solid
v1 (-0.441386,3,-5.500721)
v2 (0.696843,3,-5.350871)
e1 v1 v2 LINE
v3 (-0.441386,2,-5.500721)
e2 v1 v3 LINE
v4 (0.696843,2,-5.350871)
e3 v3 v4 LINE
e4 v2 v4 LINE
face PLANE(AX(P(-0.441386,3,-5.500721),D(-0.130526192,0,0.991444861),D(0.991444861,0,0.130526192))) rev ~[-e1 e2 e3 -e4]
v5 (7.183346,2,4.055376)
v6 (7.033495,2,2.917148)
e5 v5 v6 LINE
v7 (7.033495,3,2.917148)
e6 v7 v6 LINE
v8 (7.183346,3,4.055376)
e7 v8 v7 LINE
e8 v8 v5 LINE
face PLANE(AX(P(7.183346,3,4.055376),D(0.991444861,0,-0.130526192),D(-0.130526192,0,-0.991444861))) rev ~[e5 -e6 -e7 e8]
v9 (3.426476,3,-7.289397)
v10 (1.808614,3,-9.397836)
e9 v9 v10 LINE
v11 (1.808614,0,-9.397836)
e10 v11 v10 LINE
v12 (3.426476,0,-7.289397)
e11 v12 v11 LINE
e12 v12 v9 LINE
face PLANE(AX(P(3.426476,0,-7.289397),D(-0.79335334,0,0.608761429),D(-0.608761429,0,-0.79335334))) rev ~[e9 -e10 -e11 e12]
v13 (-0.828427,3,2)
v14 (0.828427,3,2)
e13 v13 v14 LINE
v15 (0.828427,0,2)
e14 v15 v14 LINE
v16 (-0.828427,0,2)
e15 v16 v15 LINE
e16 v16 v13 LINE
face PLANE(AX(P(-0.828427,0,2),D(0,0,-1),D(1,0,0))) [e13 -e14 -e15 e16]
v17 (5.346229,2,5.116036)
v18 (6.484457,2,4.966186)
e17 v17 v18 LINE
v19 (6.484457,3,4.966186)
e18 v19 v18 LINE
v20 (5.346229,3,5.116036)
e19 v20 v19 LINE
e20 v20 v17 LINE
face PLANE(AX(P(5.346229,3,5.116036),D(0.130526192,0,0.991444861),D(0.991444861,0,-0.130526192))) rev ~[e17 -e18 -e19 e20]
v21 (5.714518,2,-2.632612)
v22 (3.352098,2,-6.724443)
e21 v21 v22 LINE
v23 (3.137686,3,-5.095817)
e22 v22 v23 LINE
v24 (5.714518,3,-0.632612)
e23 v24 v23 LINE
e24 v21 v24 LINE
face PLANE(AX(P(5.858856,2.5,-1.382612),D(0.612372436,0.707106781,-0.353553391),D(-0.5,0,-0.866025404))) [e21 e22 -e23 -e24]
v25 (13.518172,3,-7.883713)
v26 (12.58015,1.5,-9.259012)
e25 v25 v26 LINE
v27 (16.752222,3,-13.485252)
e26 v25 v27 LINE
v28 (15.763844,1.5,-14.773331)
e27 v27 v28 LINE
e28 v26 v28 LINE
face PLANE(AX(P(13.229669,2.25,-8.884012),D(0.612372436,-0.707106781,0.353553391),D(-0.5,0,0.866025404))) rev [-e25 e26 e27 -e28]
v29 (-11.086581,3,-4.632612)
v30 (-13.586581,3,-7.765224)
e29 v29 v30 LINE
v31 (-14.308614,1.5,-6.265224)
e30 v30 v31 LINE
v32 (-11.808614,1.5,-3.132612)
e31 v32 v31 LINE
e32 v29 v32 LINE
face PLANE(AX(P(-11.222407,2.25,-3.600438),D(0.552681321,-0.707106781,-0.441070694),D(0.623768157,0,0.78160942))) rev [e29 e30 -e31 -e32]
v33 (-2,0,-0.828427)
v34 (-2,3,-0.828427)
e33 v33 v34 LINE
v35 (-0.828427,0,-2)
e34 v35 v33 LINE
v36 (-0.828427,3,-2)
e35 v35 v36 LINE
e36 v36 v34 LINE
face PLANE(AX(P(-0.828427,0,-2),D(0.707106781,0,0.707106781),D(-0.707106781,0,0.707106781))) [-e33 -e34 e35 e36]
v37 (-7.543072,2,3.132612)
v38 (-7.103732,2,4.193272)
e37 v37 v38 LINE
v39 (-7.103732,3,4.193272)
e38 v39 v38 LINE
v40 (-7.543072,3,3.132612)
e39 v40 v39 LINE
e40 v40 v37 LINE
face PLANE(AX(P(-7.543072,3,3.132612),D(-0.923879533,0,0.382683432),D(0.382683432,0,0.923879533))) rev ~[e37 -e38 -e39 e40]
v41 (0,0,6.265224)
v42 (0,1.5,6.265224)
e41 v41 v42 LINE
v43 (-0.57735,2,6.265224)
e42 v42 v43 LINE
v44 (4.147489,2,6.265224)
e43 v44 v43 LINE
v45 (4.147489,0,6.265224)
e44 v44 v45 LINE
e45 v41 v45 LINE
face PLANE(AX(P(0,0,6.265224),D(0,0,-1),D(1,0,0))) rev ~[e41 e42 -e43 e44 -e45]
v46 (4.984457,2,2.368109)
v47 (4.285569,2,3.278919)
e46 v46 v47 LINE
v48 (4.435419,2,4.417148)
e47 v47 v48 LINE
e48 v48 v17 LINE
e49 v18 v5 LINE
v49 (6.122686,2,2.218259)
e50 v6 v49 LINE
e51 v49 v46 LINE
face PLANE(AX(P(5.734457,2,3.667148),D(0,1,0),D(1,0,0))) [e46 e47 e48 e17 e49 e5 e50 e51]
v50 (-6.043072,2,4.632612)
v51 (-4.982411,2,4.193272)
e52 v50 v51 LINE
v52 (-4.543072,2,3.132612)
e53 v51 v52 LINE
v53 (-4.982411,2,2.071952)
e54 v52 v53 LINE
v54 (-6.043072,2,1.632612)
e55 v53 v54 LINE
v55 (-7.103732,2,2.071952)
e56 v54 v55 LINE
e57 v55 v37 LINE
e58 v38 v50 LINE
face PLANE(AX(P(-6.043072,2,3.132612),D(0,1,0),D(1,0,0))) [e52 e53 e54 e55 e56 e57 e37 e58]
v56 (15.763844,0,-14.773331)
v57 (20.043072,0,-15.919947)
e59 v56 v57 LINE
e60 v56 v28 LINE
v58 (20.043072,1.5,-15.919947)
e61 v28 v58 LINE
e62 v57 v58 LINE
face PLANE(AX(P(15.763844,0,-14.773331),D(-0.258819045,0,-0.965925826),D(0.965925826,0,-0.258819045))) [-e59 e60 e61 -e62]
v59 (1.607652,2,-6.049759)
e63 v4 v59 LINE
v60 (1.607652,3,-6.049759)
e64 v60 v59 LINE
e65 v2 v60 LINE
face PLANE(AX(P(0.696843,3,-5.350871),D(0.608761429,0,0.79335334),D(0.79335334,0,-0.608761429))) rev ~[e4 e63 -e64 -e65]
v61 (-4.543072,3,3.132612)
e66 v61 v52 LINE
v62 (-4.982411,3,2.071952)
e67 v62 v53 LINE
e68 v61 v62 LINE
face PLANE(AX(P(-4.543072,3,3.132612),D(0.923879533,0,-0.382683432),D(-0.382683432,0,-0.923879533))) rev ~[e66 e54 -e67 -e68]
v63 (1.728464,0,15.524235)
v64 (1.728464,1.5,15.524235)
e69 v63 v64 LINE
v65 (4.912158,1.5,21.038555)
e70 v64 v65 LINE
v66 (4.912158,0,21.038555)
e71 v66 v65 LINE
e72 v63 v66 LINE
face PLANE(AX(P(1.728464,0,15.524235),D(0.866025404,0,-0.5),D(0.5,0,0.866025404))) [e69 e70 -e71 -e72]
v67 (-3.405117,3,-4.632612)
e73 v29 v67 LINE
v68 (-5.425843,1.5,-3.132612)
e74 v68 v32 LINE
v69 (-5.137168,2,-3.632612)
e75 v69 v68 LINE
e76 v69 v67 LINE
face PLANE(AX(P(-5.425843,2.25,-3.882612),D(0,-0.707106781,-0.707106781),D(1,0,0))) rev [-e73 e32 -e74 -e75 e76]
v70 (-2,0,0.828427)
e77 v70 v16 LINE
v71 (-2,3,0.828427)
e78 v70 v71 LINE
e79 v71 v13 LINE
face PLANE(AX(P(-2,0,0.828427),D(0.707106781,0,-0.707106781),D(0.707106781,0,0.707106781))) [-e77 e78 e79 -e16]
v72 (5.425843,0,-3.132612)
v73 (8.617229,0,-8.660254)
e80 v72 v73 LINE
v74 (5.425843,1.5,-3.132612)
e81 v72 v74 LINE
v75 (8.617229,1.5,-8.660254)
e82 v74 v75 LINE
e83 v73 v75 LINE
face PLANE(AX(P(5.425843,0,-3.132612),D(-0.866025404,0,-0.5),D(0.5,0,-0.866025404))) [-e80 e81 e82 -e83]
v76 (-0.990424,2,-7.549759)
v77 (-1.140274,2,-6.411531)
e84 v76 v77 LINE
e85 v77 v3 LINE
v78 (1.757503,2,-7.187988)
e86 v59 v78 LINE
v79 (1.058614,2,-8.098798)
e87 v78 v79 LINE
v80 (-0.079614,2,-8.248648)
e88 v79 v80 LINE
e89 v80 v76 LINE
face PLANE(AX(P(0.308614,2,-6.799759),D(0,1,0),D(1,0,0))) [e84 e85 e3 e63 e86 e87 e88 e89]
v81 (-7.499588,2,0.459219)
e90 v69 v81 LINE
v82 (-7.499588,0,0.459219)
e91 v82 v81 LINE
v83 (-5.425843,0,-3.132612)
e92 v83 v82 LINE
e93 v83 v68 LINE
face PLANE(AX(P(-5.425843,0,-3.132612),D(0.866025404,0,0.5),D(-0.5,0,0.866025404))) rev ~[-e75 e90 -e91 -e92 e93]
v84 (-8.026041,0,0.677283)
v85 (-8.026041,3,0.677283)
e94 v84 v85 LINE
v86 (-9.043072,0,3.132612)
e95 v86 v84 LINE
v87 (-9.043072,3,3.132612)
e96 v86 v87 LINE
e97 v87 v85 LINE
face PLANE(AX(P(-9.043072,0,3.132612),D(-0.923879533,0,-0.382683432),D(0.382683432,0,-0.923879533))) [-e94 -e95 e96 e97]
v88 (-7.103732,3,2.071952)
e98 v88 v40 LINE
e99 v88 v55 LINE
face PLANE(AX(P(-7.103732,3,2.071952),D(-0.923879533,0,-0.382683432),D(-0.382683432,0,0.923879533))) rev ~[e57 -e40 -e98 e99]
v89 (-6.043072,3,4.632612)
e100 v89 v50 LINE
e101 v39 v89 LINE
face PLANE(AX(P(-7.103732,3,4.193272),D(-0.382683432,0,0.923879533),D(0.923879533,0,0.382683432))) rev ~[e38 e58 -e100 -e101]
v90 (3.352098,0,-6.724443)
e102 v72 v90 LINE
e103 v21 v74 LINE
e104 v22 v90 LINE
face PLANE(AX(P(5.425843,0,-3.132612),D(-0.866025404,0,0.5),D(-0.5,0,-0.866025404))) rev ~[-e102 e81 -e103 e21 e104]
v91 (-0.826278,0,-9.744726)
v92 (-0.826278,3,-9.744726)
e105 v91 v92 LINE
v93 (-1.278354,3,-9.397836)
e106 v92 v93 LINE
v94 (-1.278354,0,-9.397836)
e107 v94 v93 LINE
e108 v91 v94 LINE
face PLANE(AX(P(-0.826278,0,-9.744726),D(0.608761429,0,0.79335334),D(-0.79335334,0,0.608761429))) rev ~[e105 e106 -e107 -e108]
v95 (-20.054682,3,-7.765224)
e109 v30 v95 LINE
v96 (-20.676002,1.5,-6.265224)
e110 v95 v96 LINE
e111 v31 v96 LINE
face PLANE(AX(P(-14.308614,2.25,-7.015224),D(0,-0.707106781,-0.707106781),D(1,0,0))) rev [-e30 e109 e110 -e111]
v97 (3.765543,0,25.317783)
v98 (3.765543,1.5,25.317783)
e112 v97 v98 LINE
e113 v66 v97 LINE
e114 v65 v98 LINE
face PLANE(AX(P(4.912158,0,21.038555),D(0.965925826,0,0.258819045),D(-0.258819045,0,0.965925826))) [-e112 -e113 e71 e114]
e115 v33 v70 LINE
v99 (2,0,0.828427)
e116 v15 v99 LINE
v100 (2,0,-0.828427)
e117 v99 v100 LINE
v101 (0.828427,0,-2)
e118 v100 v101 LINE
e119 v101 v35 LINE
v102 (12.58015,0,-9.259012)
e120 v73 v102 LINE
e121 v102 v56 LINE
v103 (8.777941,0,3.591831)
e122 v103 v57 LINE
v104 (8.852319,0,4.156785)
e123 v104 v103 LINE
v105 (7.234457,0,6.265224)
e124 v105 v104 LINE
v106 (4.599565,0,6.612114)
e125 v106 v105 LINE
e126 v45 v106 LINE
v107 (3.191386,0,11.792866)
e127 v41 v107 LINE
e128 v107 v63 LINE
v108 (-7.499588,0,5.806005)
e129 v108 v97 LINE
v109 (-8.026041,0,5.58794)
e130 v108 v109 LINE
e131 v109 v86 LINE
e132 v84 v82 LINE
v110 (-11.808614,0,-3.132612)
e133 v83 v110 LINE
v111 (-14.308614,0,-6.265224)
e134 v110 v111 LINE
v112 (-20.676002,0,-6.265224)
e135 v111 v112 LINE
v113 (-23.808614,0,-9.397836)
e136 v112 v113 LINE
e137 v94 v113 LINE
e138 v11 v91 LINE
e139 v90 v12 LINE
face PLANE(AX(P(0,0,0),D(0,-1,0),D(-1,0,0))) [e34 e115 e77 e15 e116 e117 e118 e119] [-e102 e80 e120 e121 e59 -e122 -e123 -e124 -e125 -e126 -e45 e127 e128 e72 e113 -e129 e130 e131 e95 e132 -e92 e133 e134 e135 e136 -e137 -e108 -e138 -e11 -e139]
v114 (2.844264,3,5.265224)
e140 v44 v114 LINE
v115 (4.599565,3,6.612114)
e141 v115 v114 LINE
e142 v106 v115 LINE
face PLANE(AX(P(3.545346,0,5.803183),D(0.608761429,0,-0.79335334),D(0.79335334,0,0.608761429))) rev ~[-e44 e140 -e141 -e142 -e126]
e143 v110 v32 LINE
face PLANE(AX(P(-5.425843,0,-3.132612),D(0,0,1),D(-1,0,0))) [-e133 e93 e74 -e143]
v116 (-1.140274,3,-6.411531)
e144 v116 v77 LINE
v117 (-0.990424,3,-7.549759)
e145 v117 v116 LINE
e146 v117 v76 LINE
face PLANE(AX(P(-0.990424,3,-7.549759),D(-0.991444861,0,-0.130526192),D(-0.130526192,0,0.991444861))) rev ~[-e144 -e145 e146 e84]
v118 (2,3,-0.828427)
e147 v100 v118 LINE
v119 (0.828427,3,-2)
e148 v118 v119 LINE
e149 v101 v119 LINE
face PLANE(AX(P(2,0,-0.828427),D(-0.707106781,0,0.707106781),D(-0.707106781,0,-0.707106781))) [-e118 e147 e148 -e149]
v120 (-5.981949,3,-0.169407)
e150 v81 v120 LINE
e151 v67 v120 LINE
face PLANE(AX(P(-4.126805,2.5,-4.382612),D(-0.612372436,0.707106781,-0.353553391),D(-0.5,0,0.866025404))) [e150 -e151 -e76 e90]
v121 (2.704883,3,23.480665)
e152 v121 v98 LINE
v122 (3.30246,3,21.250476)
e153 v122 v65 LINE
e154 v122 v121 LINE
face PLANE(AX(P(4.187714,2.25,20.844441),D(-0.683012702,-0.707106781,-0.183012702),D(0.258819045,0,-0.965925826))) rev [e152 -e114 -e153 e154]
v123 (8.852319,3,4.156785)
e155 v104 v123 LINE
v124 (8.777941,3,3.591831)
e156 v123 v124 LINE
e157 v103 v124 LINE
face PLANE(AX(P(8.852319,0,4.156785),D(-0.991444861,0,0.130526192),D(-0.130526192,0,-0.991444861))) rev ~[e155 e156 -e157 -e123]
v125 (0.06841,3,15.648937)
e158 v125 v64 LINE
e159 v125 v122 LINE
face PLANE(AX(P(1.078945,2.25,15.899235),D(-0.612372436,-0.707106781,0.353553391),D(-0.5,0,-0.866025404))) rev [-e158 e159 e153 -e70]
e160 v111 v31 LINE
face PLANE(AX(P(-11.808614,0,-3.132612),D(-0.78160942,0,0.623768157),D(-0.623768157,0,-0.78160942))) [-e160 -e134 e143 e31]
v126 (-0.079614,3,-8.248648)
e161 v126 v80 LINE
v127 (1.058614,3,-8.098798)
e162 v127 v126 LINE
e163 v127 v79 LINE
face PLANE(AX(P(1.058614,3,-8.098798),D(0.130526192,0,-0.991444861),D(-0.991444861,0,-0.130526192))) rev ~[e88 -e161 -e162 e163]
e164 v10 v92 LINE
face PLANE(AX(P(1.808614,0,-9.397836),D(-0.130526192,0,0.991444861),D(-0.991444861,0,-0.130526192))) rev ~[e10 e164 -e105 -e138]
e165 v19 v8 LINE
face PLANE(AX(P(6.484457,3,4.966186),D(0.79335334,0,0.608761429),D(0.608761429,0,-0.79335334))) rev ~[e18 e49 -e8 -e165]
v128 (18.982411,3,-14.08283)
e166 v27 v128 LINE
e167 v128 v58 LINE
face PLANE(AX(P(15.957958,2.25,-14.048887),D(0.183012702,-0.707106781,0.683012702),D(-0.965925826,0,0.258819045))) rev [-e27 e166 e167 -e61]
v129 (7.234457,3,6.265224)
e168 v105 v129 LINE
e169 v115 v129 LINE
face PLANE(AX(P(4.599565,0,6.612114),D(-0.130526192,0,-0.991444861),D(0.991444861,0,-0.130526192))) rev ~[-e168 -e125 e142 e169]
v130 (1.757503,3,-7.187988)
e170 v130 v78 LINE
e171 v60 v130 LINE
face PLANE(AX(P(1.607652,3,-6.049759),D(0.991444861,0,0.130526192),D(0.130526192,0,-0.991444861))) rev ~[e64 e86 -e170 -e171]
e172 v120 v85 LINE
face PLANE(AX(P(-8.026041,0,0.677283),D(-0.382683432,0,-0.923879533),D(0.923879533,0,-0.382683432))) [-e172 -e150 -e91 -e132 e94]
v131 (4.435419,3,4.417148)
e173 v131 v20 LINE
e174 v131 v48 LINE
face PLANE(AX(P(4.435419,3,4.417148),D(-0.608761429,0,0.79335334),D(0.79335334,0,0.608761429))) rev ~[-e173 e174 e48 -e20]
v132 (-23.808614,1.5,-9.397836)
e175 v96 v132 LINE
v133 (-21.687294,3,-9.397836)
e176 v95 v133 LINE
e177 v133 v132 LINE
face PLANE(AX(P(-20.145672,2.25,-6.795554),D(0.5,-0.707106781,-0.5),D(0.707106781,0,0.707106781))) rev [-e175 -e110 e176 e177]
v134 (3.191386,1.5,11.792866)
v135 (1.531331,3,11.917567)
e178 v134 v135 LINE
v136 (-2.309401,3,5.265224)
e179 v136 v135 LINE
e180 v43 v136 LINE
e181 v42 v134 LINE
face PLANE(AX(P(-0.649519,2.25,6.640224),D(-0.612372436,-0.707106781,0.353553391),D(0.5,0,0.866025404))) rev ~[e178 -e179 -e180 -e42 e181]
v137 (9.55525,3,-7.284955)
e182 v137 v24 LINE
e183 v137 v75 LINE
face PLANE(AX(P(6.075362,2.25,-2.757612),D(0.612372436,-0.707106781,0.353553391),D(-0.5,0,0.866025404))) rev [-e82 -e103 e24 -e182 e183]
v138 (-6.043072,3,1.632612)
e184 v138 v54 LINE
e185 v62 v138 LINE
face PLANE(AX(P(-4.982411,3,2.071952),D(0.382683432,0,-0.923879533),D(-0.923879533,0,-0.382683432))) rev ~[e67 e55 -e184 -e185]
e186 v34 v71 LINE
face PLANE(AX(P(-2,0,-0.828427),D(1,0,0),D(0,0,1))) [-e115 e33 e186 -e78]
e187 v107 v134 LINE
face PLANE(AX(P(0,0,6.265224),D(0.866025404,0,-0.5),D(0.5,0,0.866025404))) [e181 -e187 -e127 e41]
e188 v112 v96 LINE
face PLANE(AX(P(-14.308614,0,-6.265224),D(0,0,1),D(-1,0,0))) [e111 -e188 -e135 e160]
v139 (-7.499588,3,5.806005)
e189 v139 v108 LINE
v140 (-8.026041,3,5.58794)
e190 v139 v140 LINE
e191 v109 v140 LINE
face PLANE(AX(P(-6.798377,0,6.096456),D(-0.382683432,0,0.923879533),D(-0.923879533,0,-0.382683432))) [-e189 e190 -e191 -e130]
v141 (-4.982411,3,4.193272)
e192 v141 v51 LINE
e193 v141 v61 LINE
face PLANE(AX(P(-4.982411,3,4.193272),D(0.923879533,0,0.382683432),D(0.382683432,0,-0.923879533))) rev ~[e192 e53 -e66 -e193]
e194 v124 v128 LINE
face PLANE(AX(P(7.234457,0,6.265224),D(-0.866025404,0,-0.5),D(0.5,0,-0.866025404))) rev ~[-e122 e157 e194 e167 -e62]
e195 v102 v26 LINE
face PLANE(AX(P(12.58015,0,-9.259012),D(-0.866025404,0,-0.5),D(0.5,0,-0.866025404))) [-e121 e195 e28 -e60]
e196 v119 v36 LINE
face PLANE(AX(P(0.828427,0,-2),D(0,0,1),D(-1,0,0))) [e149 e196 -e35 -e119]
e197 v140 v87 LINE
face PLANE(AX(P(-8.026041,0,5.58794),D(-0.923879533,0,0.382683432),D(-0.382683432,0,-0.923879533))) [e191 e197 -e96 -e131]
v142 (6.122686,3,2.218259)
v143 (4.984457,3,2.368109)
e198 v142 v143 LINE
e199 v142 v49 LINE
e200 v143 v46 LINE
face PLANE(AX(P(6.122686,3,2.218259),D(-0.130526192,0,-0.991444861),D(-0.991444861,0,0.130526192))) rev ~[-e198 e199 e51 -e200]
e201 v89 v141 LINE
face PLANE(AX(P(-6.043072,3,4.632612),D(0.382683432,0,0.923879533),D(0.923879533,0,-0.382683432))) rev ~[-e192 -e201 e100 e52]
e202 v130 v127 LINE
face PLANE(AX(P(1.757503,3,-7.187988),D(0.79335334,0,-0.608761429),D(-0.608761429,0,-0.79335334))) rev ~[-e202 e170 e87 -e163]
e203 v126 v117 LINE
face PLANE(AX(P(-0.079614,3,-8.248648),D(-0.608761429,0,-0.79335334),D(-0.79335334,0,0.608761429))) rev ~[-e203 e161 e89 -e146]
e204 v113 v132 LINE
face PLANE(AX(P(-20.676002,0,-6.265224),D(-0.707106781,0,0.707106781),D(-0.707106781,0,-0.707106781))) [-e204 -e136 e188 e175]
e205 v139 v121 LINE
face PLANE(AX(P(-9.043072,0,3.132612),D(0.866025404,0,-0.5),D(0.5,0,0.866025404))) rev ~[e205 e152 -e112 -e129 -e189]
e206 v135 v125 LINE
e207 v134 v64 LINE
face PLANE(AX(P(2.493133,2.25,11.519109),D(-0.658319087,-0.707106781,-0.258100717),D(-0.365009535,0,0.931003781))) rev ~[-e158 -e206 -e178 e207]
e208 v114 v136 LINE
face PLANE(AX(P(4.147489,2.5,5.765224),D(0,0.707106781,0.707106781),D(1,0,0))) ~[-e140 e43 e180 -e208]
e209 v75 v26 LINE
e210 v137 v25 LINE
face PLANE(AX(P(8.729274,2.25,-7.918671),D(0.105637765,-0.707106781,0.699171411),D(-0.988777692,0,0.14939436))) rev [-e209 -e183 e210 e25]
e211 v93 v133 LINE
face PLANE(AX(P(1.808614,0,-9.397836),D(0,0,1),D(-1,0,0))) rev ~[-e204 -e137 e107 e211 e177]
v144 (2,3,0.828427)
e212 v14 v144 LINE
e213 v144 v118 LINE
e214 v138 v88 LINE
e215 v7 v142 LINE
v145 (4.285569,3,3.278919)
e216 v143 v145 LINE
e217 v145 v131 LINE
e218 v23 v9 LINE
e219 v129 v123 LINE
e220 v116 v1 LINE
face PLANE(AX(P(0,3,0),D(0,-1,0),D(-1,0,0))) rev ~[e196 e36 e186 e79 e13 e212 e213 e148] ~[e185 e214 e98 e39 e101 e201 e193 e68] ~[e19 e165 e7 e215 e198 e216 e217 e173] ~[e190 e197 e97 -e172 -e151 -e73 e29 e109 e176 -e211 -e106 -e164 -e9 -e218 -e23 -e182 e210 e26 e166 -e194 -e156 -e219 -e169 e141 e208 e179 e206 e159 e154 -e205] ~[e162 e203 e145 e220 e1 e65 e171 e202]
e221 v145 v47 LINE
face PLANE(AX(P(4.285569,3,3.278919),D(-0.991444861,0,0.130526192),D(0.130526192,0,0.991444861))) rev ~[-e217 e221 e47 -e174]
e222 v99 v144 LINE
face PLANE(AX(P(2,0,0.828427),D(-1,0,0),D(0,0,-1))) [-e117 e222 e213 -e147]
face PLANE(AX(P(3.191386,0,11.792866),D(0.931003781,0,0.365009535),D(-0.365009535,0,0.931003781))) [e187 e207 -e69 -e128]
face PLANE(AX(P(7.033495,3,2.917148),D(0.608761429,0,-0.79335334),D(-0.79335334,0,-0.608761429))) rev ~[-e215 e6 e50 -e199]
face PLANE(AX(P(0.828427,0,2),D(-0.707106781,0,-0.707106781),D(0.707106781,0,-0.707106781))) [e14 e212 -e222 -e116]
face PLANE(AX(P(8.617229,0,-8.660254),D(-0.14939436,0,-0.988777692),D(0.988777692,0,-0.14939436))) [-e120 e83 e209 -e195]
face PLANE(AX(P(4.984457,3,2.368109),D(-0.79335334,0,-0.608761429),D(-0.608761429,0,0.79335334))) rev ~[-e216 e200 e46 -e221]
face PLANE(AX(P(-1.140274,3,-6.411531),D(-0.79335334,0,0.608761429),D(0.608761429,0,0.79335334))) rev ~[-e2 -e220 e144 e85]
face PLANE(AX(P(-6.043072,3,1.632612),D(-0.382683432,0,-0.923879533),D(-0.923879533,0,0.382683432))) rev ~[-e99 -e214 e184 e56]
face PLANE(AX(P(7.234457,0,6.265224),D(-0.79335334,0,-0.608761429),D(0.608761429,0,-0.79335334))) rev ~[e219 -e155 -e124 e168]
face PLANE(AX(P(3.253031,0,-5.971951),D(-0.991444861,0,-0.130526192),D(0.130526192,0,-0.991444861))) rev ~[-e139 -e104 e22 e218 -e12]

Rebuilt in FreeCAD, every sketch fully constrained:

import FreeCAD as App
import Part
import Sketcher
from FreeCAD import Vector
Q = App.Units.Quantity


def edges_at(feature, points):
    """Names of the edges that pass closest to the given points."""
    edges = feature.Shape.Edges
    near = lambda p: min(range(len(edges)), key=lambda i: edges[i].distToShape(Part.Vertex(*p))[0])
    return sorted({f"Edge{near(p) + 1}" for p in points})

doc = App.newDocument("Part")
body = doc.addObject("PartDesign::Body", "Body")

# Sketch on XZ plane
sketch1 = doc.addObject("Sketcher::SketchObject", "Sketch")
body.addObject(sketch1)
sketch1.AttachmentSupport = (doc.XZ_Plane, [""])
sketch1.MapMode = "FlatFace"
sketch1.addGeometry(Part.LineSegment(Vector(-3.6, 0, 0), Vector(-1.8, 3.1, 0)), False)
sketch1.addGeometry(Part.LineSegment(Vector(-1.8, 3.1, 0), Vector(1.8, 3.1, 0)), False)
sketch1.addGeometry(Part.LineSegment(Vector(1.8, 3.1, 0), Vector(3.6, 0, 0)), False)
sketch1.addGeometry(Part.LineSegment(Vector(3.6, 0, 0), Vector(1.8, -3.1, 0)), False)
sketch1.addGeometry(Part.LineSegment(Vector(1.8, -3.1, 0), Vector(-1.8, -3.1, 0)), False)
sketch1.addGeometry(Part.LineSegment(Vector(-1.8, -3.1, 0), Vector(-3.6, 0, 0)), False)
sketch1.addGeometry(Part.LineSegment(Vector(0.8, -2, 0), Vector(2, -0.8, 0)), False)
sketch1.addGeometry(Part.LineSegment(Vector(2, -0.8, 0), Vector(2, 0.8, 0)), False)
sketch1.addGeometry(Part.LineSegment(Vector(2, 0.8, 0), Vector(0.8, 2, 0)), False)
sketch1.addGeometry(Part.LineSegment(Vector(0.8, 2, 0), Vector(-0.8, 2, 0)), False)
sketch1.addGeometry(Part.LineSegment(Vector(-0.8, 2, 0), Vector(-2, 0.8, 0)), False)
sketch1.addGeometry(Part.LineSegment(Vector(-2, 0.8, 0), Vector(-2, -0.8, 0)), False)
sketch1.addGeometry(Part.LineSegment(Vector(-2, -0.8, 0), Vector(-0.8, -2, 0)), False)
sketch1.addGeometry(Part.LineSegment(Vector(-0.8, -2, 0), Vector(0.8, -2, 0)), False)
sketch1.addConstraint(Sketcher.Constraint("Coincident", 0, 2, 1, 1))
sketch1.addConstraint(Sketcher.Constraint("Coincident", 1, 2, 2, 1))
sketch1.addConstraint(Sketcher.Constraint("Coincident", 2, 2, 3, 1))
sketch1.addConstraint(Sketcher.Constraint("Coincident", 3, 2, 4, 1))
sketch1.addConstraint(Sketcher.Constraint("Coincident", 4, 2, 5, 1))
sketch1.addConstraint(Sketcher.Constraint("Coincident", 5, 2, 0, 1))
sketch1.addConstraint(Sketcher.Constraint("Coincident", 6, 2, 7, 1))
sketch1.addConstraint(Sketcher.Constraint("Coincident", 7, 2, 8, 1))
sketch1.addConstraint(Sketcher.Constraint("Coincident", 8, 2, 9, 1))
sketch1.addConstraint(Sketcher.Constraint("Coincident", 9, 2, 10, 1))
sketch1.addConstraint(Sketcher.Constraint("Coincident", 10, 2, 11, 1))
sketch1.addConstraint(Sketcher.Constraint("Coincident", 11, 2, 12, 1))
sketch1.addConstraint(Sketcher.Constraint("Coincident", 12, 2, 13, 1))
sketch1.addConstraint(Sketcher.Constraint("Coincident", 13, 2, 6, 1))
sketch1.addConstraint(Sketcher.Constraint("Horizontal", 1))
sketch1.addConstraint(Sketcher.Constraint("Horizontal", 4))
sketch1.addConstraint(Sketcher.Constraint("Vertical", 7))
sketch1.addConstraint(Sketcher.Constraint("Horizontal", 9))
sketch1.addConstraint(Sketcher.Constraint("Vertical", 11))
sketch1.addConstraint(Sketcher.Constraint("Horizontal", 13))
sketch1.addConstraint(Sketcher.Constraint("Symmetric", 0, 2, 3, 2, -1, 1))
sketch1.addConstraint(Sketcher.Constraint("Symmetric", 2, 2, 5, 2, -1, 1))
sketch1.addConstraint(Sketcher.Constraint("Symmetric", 6, 2, 10, 2, -1, 1))
sketch1.addConstraint(Sketcher.Constraint("Symmetric", 8, 2, 12, 2, -1, 1))
sketch1.addConstraint(Sketcher.Constraint("PointOnObject", 2, 2, -1))
sketch1.addConstraint(Sketcher.Constraint("Parallel", 2, 5))
sketch1.addConstraint(Sketcher.Constraint("Perpendicular", 6, 8))
sketch1.addConstraint(Sketcher.Constraint("Perpendicular", 8, 10))
sketch1.addConstraint(Sketcher.Constraint("Perpendicular", 10, 12))
sketch1.addConstraint(Sketcher.Constraint("Horizontal", 7, 2, 10, 2))
sketch1.addConstraint(Sketcher.Constraint("Vertical", 1, 2, 3, 2))
sketch1.addConstraint(Sketcher.Constraint("Vertical", 9, 2, 12, 2))
sketch1.addConstraint(Sketcher.Constraint("Equal", 13, 7))
sketch1.addConstraint(Sketcher.Constraint("Angle", 0, Q("60 deg")))
sketch1.addConstraint(Sketcher.Constraint("DistanceX", -1, 1, 6, 2, Q("2 mm")))
sketch1.addConstraint(Sketcher.Constraint("DistanceX", 1, 1, 1, 2, Q("3.617229 mm")))
sketch1.addConstraint(Sketcher.Constraint("DistanceX", 8, 2, 2, 2, Q("2.788802 mm")))
sketch1.addConstraint(Sketcher.Constraint("Distance", 0, Q("3.617229 mm")))
pad1 = doc.addObject("PartDesign::Pad", "Pad")
body.addObject(pad1)
pad1.Profile = sketch1
pad1.Length = 3
pad1.Reversed = True

# Sketch on XZ plane
sketch2 = doc.addObject("Sketcher::SketchObject", "Sketch001")
body.addObject(sketch2)
sketch2.AttachmentSupport = (doc.XZ_Plane, [""])
sketch2.MapMode = "FlatFace"
sketch2.addGeometry(Part.LineSegment(Vector(3.2, 11.8, 0), Vector(0, 6.3, 0)), False)
sketch2.addGeometry(Part.LineSegment(Vector(0, 6.3, 0), Vector(7.2, 6.3, 0)), False)
sketch2.addGeometry(Part.LineSegment(Vector(7.2, 6.3, 0), Vector(20, -15.9, 0)), False)
sketch2.addGeometry(Part.LineSegment(Vector(20, -15.9, 0), Vector(15.8, -14.8, 0)), False)
sketch2.addGeometry(Part.LineSegment(Vector(15.8, -14.8, 0), Vector(12.6, -9.3, 0)), False)
sketch2.addGeometry(Part.LineSegment(Vector(12.6, -9.3, 0), Vector(8.6, -8.7, 0)), False)
sketch2.addGeometry(Part.LineSegment(Vector(8.6, -8.7, 0), Vector(5.4, -3.1, 0)), False)
sketch2.addGeometry(Part.LineSegment(Vector(5.4, -3.1, 0), Vector(1.8, -9.4, 0)), False)
sketch2.addGeometry(Part.LineSegment(Vector(1.8, -9.4, 0), Vector(-23.8, -9.4, 0)), False)
sketch2.addGeometry(Part.LineSegment(Vector(-23.8, -9.4, 0), Vector(-20.7, -6.3, 0)), False)
sketch2.addGeometry(Part.LineSegment(Vector(-20.7, -6.3, 0), Vector(-14.3, -6.3, 0)), False)
sketch2.addGeometry(Part.LineSegment(Vector(-14.3, -6.3, 0), Vector(-11.8, -3.1, 0)), False)
sketch2.addGeometry(Part.LineSegment(Vector(-11.8, -3.1, 0), Vector(-5.4, -3.1, 0)), False)
sketch2.addGeometry(Part.LineSegment(Vector(-5.4, -3.1, 0), Vector(-9, 3.1, 0)), False)
sketch2.addGeometry(Part.LineSegment(Vector(-9, 3.1, 0), Vector(3.8, 25.3, 0)), False)
sketch2.addGeometry(Part.LineSegment(Vector(3.8, 25.3, 0), Vector(4.9, 21, 0)), False)
sketch2.addGeometry(Part.LineSegment(Vector(4.9, 21, 0), Vector(1.7, 15.5, 0)), False)
sketch2.addGeometry(Part.LineSegment(Vector(1.7, 15.5, 0), Vector(3.2, 11.8, 0)), False)
sketch2.addGeometry(Part.LineSegment(Vector(-1.8, 3.1, 0), Vector(-3.6, 0, 0)), False)
sketch2.addGeometry(Part.LineSegment(Vector(-3.6, 0, 0), Vector(-1.8, -3.1, 0)), False)
sketch2.addGeometry(Part.LineSegment(Vector(-1.8, -3.1, 0), Vector(1.8, -3.1, 0)), False)
sketch2.addGeometry(Part.LineSegment(Vector(1.8, -3.1, 0), Vector(3.6, 0, 0)), False)
sketch2.addGeometry(Part.LineSegment(Vector(3.6, 0, 0), Vector(1.8, 3.1, 0)), False)
sketch2.addGeometry(Part.LineSegment(Vector(1.8, 3.1, 0), Vector(-1.8, 3.1, 0)), False)
sketch2.addConstraint(Sketcher.Constraint("Coincident", 0, 2, 1, 1))
sketch2.addConstraint(Sketcher.Constraint("Coincident", 1, 2, 2, 1))
sketch2.addConstraint(Sketcher.Constraint("Coincident", 2, 2, 3, 1))
sketch2.addConstraint(Sketcher.Constraint("Coincident", 3, 2, 4, 1))
sketch2.addConstraint(Sketcher.Constraint("Coincident", 4, 2, 5, 1))
sketch2.addConstraint(Sketcher.Constraint("Coincident", 5, 2, 6, 1))
sketch2.addConstraint(Sketcher.Constraint("Coincident", 6, 2, 7, 1))
sketch2.addConstraint(Sketcher.Constraint("Coincident", 7, 2, 8, 1))
sketch2.addConstraint(Sketcher.Constraint("Coincident", 8, 2, 9, 1))
sketch2.addConstraint(Sketcher.Constraint("Coincident", 9, 2, 10, 1))
sketch2.addConstraint(Sketcher.Constraint("Coincident", 10, 2, 11, 1))
sketch2.addConstraint(Sketcher.Constraint("Coincident", 11, 2, 12, 1))
sketch2.addConstraint(Sketcher.Constraint("Coincident", 12, 2, 13, 1))
sketch2.addConstraint(Sketcher.Constraint("Coincident", 13, 2, 14, 1))
sketch2.addConstraint(Sketcher.Constraint("Coincident", 14, 2, 15, 1))
sketch2.addConstraint(Sketcher.Constraint("Coincident", 15, 2, 16, 1))
sketch2.addConstraint(Sketcher.Constraint("Coincident", 16, 2, 17, 1))
sketch2.addConstraint(Sketcher.Constraint("Coincident", 17, 2, 0, 1))
sketch2.addConstraint(Sketcher.Constraint("Coincident", 18, 2, 19, 1))
sketch2.addConstraint(Sketcher.Constraint("Coincident", 19, 2, 20, 1))
sketch2.addConstraint(Sketcher.Constraint("Coincident", 20, 2, 21, 1))
sketch2.addConstraint(Sketcher.Constraint("Coincident", 21, 2, 22, 1))
sketch2.addConstraint(Sketcher.Constraint("Coincident", 22, 2, 23, 1))
sketch2.addConstraint(Sketcher.Constraint("Coincident", 23, 2, 18, 1))
sketch2.addConstraint(Sketcher.Constraint("Horizontal", 1))
sketch2.addConstraint(Sketcher.Constraint("Horizontal", 8))
sketch2.addConstraint(Sketcher.Constraint("Horizontal", 10))
sketch2.addConstraint(Sketcher.Constraint("Horizontal", 12))
sketch2.addConstraint(Sketcher.Constraint("Horizontal", 20))
sketch2.addConstraint(Sketcher.Constraint("Horizontal", 23))
sketch2.addConstraint(Sketcher.Constraint("Symmetric", 18, 2, 21, 2, -1, 1))
sketch2.addConstraint(Sketcher.Constraint("Symmetric", 19, 2, 22, 2, -1, 1))
sketch2.addConstraint(Sketcher.Constraint("Symmetric", 6, 2, 12, 2, -2))
sketch2.addConstraint(Sketcher.Constraint("PointOnObject", 0, 2, -2))
sketch2.addConstraint(Sketcher.Constraint("PointOnObject", 18, 2, -1))
sketch2.addConstraint(Sketcher.Constraint("Parallel", 2, 4))
sketch2.addConstraint(Sketcher.Constraint("Parallel", 4, 6))
sketch2.addConstraint(Sketcher.Constraint("Parallel", 0, 7))
sketch2.addConstraint(Sketcher.Constraint("Parallel", 6, 13))
sketch2.addConstraint(Sketcher.Constraint("Parallel", 7, 14))
sketch2.addConstraint(Sketcher.Constraint("Parallel", 14, 16))
sketch2.addConstraint(Sketcher.Constraint("Parallel", 16, 18))
sketch2.addConstraint(Sketcher.Constraint("Parallel", 13, 19))
sketch2.addConstraint(Sketcher.Constraint("Parallel", 18, 21))
sketch2.addConstraint(Sketcher.Constraint("Horizontal", 12, 2, 19, 2))
sketch2.addConstraint(Sketcher.Constraint("Horizontal", 13, 2, 22, 2))
sketch2.addConstraint(Sketcher.Constraint("Vertical", 7, 2, 20, 2))
sketch2.addConstraint(Sketcher.Constraint("Vertical", 20, 2, 22, 2))
sketch2.addConstraint(Sketcher.Constraint("Equal", 0, 6))
sketch2.addConstraint(Sketcher.Constraint("Equal", 3, 9))
sketch2.addConstraint(Sketcher.Constraint("Equal", 5, 11))
sketch2.addConstraint(Sketcher.Constraint("Equal", 7, 13))
sketch2.addConstraint(Sketcher.Constraint("Equal", 2, 14))
sketch2.addConstraint(Sketcher.Constraint("Equal", 9, 15))
sketch2.addConstraint(Sketcher.Constraint("Equal", 4, 16))
sketch2.addConstraint(Sketcher.Constraint("Equal", 11, 17))
sketch2.addConstraint(Sketcher.Constraint("Angle", 0, Q("-120 deg")))
sketch2.addConstraint(Sketcher.Constraint("Angle", 3, Q("165 deg")))
sketch2.addConstraint(Sketcher.Constraint("Angle", 9, Q("45 deg")))
sketch2.addConstraint(Sketcher.Constraint("Angle", 15, Q("-75 deg")))
sketch2.addConstraint(Sketcher.Constraint("DistanceX", 8, 2, 11, 2, Q("12 mm")))
sketch2.addConstraint(Sketcher.Constraint("DistanceX", 8, 2, 10, 2, Q("9.5 mm")))
sketch2.addConstraint(Sketcher.Constraint("DistanceX", 6, 2, 3, 2, Q("10.338001 mm")))
sketch2.addConstraint(Sketcher.Constraint("Distance", 5, Q("4.007899 mm")))
sketch2.addConstraint(Sketcher.Constraint("DistanceX", 8, 2, 8, 1, Q("25.617229 mm")))
sketch2.addConstraint(Sketcher.Constraint("DistanceX", 10, 1, 10, 2, Q("6.367388 mm")))
sketch2.addConstraint(Sketcher.Constraint("DistanceX", 12, 1, 12, 2, Q("6.382771 mm")))
sketch2.addConstraint(Sketcher.Constraint("DistanceY", 4, 2, 6, 2, Q("6.1264 mm")))
sketch2.addConstraint(Sketcher.Constraint("DistanceX", 14, 2, 6, 2, Q("1.6603 mm")))
pad2 = doc.addObject("PartDesign::Pad", "Pad001")
body.addObject(pad2)
pad2.Profile = sketch2
pad2.Length = 3
pad2.Reversed = True
doc.recompute()

chamfer = doc.addObject("PartDesign::Chamfer", "Chamfer")
body.addObject(chamfer)
chamfer.Base = (pad2, edges_at(pad2, [
    (17.903, 3, -15.347),
    (14.172, 3, -12.016),
    (10.599, 3, -8.96),
    (7.022, 3, -5.896),
    (-22.242, 3, -7.832),
    (-17.492, 3, -6.265),
    (-13.059, 3, -4.699),
    (-8.617, 3, -3.133),
    (4.339, 3, 23.178),
    (3.32, 3, 18.281),
    (2.46, 3, 13.659),
    (1.596, 3, 9.029),
]))
chamfer.Size = 1.5

# Sketch on XZ plane
sketch3 = doc.addObject("Sketcher::SketchObject", "Sketch002")
body.addObject(sketch3)
sketch3.AttachmentSupport = (doc.XZ_Plane, [""])
sketch3.MapMode = "FlatFace"
sketch3.addGeometry(Part.LineSegment(Vector(-6.8, 6.1, 0), Vector(-6.8, 0.2, 0)), False)
sketch3.addGeometry(Part.LineSegment(Vector(-6.8, 0.2, 0), Vector(-8, 0.7, 0)), False)
sketch3.addGeometry(Part.LineSegment(Vector(-8, 0.7, 0), Vector(-9, 3.1, 0)), False)
sketch3.addGeometry(Part.LineSegment(Vector(-9, 3.1, 0), Vector(-8, 5.6, 0)), False)
sketch3.addGeometry(Part.LineSegment(Vector(-8, 5.6, 0), Vector(-6.8, 6.1, 0)), False)
sketch3.addGeometry(Part.LineSegment(Vector(3.4, -7.3, 0), Vector(1.8, -9.4, 0)), False)
sketch3.addGeometry(Part.LineSegment(Vector(1.8, -9.4, 0), Vector(-0.8, -9.7, 0)), False)
sketch3.addGeometry(Part.LineSegment(Vector(-0.8, -9.7, 0), Vector(-1.9, -8.9, 0)), False)
sketch3.addGeometry(Part.LineSegment(Vector(-1.9, -8.9, 0), Vector(3.3, -6, 0)), False)
sketch3.addGeometry(Part.LineSegment(Vector(3.3, -6, 0), Vector(3.4, -7.3, 0)), False)
sketch3.addGeometry(Part.LineSegment(Vector(4.6, 6.6, 0), Vector(7.2, 6.3, 0)), False)
sketch3.addGeometry(Part.LineSegment(Vector(7.2, 6.3, 0), Vector(8.9, 4.2, 0)), False)
sketch3.addGeometry(Part.LineSegment(Vector(8.9, 4.2, 0), Vector(8.7, 2.8, 0)), False)
sketch3.addGeometry(Part.LineSegment(Vector(8.7, 2.8, 0), Vector(3.5, 5.8, 0)), False)
sketch3.addGeometry(Part.LineSegment(Vector(3.5, 5.8, 0), Vector(4.6, 6.6, 0)), False)
sketch3.addConstraint(Sketcher.Constraint("Coincident", 0, 2, 1, 1))
sketch3.addConstraint(Sketcher.Constraint("Coincident", 1, 2, 2, 1))
sketch3.addConstraint(Sketcher.Constraint("Coincident", 2, 2, 3, 1))
sketch3.addConstraint(Sketcher.Constraint("Coincident", 3, 2, 4, 1))
sketch3.addConstraint(Sketcher.Constraint("Coincident", 4, 2, 0, 1))
sketch3.addConstraint(Sketcher.Constraint("Coincident", 5, 2, 6, 1))
sketch3.addConstraint(Sketcher.Constraint("Coincident", 6, 2, 7, 1))
sketch3.addConstraint(Sketcher.Constraint("Coincident", 7, 2, 8, 1))
sketch3.addConstraint(Sketcher.Constraint("Coincident", 8, 2, 9, 1))
sketch3.addConstraint(Sketcher.Constraint("Coincident", 9, 2, 5, 1))
sketch3.addConstraint(Sketcher.Constraint("Coincident", 10, 2, 11, 1))
sketch3.addConstraint(Sketcher.Constraint("Coincident", 11, 2, 12, 1))
sketch3.addConstraint(Sketcher.Constraint("Coincident", 12, 2, 13, 1))
sketch3.addConstraint(Sketcher.Constraint("Coincident", 13, 2, 14, 1))
sketch3.addConstraint(Sketcher.Constraint("Coincident", 14, 2, 10, 1))
sketch3.addConstraint(Sketcher.Constraint("Vertical", 0))
sketch3.addConstraint(Sketcher.Constraint("Perpendicular", 1, 3))
sketch3.addConstraint(Sketcher.Constraint("Perpendicular", 2, 4))
sketch3.addConstraint(Sketcher.Constraint("Perpendicular", 5, 7))
sketch3.addConstraint(Sketcher.Constraint("Perpendicular", 6, 9))
sketch3.addConstraint(Sketcher.Constraint("Perpendicular", 10, 12))
sketch3.addConstraint(Sketcher.Constraint("Perpendicular", 11, 14))
sketch3.addConstraint(Sketcher.Constraint("Vertical", 1, 2, 3, 2))
sketch3.addConstraint(Sketcher.Constraint("Equal", 2, 3))
sketch3.addConstraint(Sketcher.Constraint("Equal", 3, 5))
sketch3.addConstraint(Sketcher.Constraint("Equal", 5, 6))
sketch3.addConstraint(Sketcher.Constraint("Equal", 4, 7))
sketch3.addConstraint(Sketcher.Constraint("Equal", 7, 9))
sketch3.addConstraint(Sketcher.Constraint("Equal", 6, 10))
sketch3.addConstraint(Sketcher.Constraint("Equal", 10, 11))
sketch3.addConstraint(Sketcher.Constraint("Equal", 9, 12))
sketch3.addConstraint(Sketcher.Constraint("Equal", 8, 13))
sketch3.addConstraint(Sketcher.Constraint("Equal", 12, 14))
sketch3.addConstraint(Sketcher.Constraint("Angle", 8, Q("30 deg")))
sketch3.addConstraint(Sketcher.Constraint("Angle", 13, Q("150 deg")))
sketch3.addConstraint(Sketcher.Constraint("Angle", 1, Q("157.5 deg")))
sketch3.addConstraint(Sketcher.Constraint("Angle", 5, Q("-127.5 deg")))
sketch3.addConstraint(Sketcher.Constraint("DistanceX", 0, 2, 6, 2, Q("5.972099 mm")))
sketch3.addConstraint(Sketcher.Constraint("DistanceX", 3, 2, 10, 2, Q("15.260498 mm")))
sketch3.addConstraint(Sketcher.Constraint("Distance", 2, Q("2.657629 mm")))
sketch3.addConstraint(Sketcher.Constraint("DistanceY", 0, 2, 0, 1, Q("5.927688 mm")))
sketch3.addConstraint(Sketcher.Constraint("DistanceY", -1, 1, 0, 2, Q("0.168768 mm")))
sketch3.addConstraint(Sketcher.Constraint("DistanceX", 1, 2, -1, 1, Q("8.026041 mm")))
sketch3.addConstraint(Sketcher.Constraint("DistanceY", 8, 2, -1, 1, Q("5.971951 mm")))
sketch3.addConstraint(Sketcher.Constraint("DistanceY", -1, 1, 12, 2, Q("2.839339 mm")))
pad3 = doc.addObject("PartDesign::Pad", "Pad002")
body.addObject(pad3)
pad3.Profile = sketch3
pad3.Length = 3
pad3.Reversed = True

# Sketch on XZ plane
sketch4 = doc.addObject("Sketcher::SketchObject", "Sketch003")
body.addObject(sketch4)
sketch4.AttachmentSupport = (doc.XZ_Plane, [""])
sketch4.MapMode = "FlatFace"
sketch4.AttachmentOffset = App.Placement(Vector(0, 0, -3), App.Rotation())
sketch4.addGeometry(Part.LineSegment(Vector(1.1, -8.1, 0), Vector(-0.1, -8.2, 0)), False)
sketch4.addGeometry(Part.LineSegment(Vector(-0.1, -8.2, 0), Vector(-1, -7.5, 0)), False)
sketch4.addGeometry(Part.LineSegment(Vector(-1, -7.5, 0), Vector(-1.1, -6.4, 0)), False)
sketch4.addGeometry(Part.LineSegment(Vector(-1.1, -6.4, 0), Vector(-0.4, -5.5, 0)), False)
sketch4.addGeometry(Part.LineSegment(Vector(-0.4, -5.5, 0), Vector(0.7, -5.4, 0)), False)
sketch4.addGeometry(Part.LineSegment(Vector(0.7, -5.4, 0), Vector(1.6, -6, 0)), False)
sketch4.addGeometry(Part.LineSegment(Vector(1.6, -6, 0), Vector(1.8, -7.2, 0)), False)
sketch4.addGeometry(Part.LineSegment(Vector(1.8, -7.2, 0), Vector(1.1, -8.1, 0)), False)
sketch4.addGeometry(Part.LineSegment(Vector(-7.5, 3.1, 0), Vector(-7.1, 4.2, 0)), False)
sketch4.addGeometry(Part.LineSegment(Vector(-7.1, 4.2, 0), Vector(-6, 4.6, 0)), False)
sketch4.addGeometry(Part.LineSegment(Vector(-6, 4.6, 0), Vector(-5, 4.2, 0)), False)
sketch4.addGeometry(Part.LineSegment(Vector(-5, 4.2, 0), Vector(-4.5, 3.1, 0)), False)
sketch4.addGeometry(Part.LineSegment(Vector(-4.5, 3.1, 0), Vector(-5, 2.1, 0)), False)
sketch4.addGeometry(Part.LineSegment(Vector(-5, 2.1, 0), Vector(-6, 1.6, 0)), False)
sketch4.addGeometry(Part.LineSegment(Vector(-6, 1.6, 0), Vector(-7.1, 2.1, 0)), False)
sketch4.addGeometry(Part.LineSegment(Vector(-7.1, 2.1, 0), Vector(-7.5, 3.1, 0)), False)
sketch4.addGeometry(Part.LineSegment(Vector(6.5, 5, 0), Vector(7.2, 4.1, 0)), False)
sketch4.addGeometry(Part.LineSegment(Vector(7.2, 4.1, 0), Vector(7, 2.9, 0)), False)
sketch4.addGeometry(Part.LineSegment(Vector(7, 2.9, 0), Vector(6.1, 2.2, 0)), False)
sketch4.addGeometry(Part.LineSegment(Vector(6.1, 2.2, 0), Vector(5, 2.4, 0)), False)
sketch4.addGeometry(Part.LineSegment(Vector(5, 2.4, 0), Vector(4.3, 3.3, 0)), False)
sketch4.addGeometry(Part.LineSegment(Vector(4.3, 3.3, 0), Vector(4.4, 4.4, 0)), False)
sketch4.addGeometry(Part.LineSegment(Vector(4.4, 4.4, 0), Vector(5.3, 5.1, 0)), False)
sketch4.addGeometry(Part.LineSegment(Vector(5.3, 5.1, 0), Vector(6.5, 5, 0)), False)
sketch4.addConstraint(Sketcher.Constraint("Coincident", 0, 2, 1, 1))
sketch4.addConstraint(Sketcher.Constraint("Coincident", 1, 2, 2, 1))
sketch4.addConstraint(Sketcher.Constraint("Coincident", 2, 2, 3, 1))
sketch4.addConstraint(Sketcher.Constraint("Coincident", 3, 2, 4, 1))
sketch4.addConstraint(Sketcher.Constraint("Coincident", 4, 2, 5, 1))
sketch4.addConstraint(Sketcher.Constraint("Coincident", 5, 2, 6, 1))
sketch4.addConstraint(Sketcher.Constraint("Coincident", 6, 2, 7, 1))
sketch4.addConstraint(Sketcher.Constraint("Coincident", 7, 2, 0, 1))
sketch4.addConstraint(Sketcher.Constraint("Coincident", 8, 2, 9, 1))
sketch4.addConstraint(Sketcher.Constraint("Coincident", 9, 2, 10, 1))
sketch4.addConstraint(Sketcher.Constraint("Coincident", 10, 2, 11, 1))
sketch4.addConstraint(Sketcher.Constraint("Coincident", 11, 2, 12, 1))
sketch4.addConstraint(Sketcher.Constraint("Coincident", 12, 2, 13, 1))
sketch4.addConstraint(Sketcher.Constraint("Coincident", 13, 2, 14, 1))
sketch4.addConstraint(Sketcher.Constraint("Coincident", 14, 2, 15, 1))
sketch4.addConstraint(Sketcher.Constraint("Coincident", 15, 2, 8, 1))
sketch4.addConstraint(Sketcher.Constraint("Coincident", 16, 2, 17, 1))
sketch4.addConstraint(Sketcher.Constraint("Coincident", 17, 2, 18, 1))
sketch4.addConstraint(Sketcher.Constraint("Coincident", 18, 2, 19, 1))
sketch4.addConstraint(Sketcher.Constraint("Coincident", 19, 2, 20, 1))
sketch4.addConstraint(Sketcher.Constraint("Coincident", 20, 2, 21, 1))
sketch4.addConstraint(Sketcher.Constraint("Coincident", 21, 2, 22, 1))
sketch4.addConstraint(Sketcher.Constraint("Coincident", 22, 2, 23, 1))
sketch4.addConstraint(Sketcher.Constraint("Coincident", 23, 2, 16, 1))
sketch4.addConstraint(Sketcher.Constraint("Perpendicular", 0, 2))
sketch4.addConstraint(Sketcher.Constraint("Perpendicular", 1, 3))
sketch4.addConstraint(Sketcher.Constraint("Perpendicular", 2, 4))
sketch4.addConstraint(Sketcher.Constraint("Perpendicular", 3, 5))
sketch4.addConstraint(Sketcher.Constraint("Perpendicular", 4, 6))
sketch4.addConstraint(Sketcher.Constraint("Perpendicular", 5, 7))
sketch4.addConstraint(Sketcher.Constraint("Perpendicular", 8, 10))
sketch4.addConstraint(Sketcher.Constraint("Perpendicular", 9, 11))
sketch4.addConstraint(Sketcher.Constraint("Perpendicular", 10, 12))
sketch4.addConstraint(Sketcher.Constraint("Perpendicular", 11, 13))
sketch4.addConstraint(Sketcher.Constraint("Perpendicular", 12, 14))
sketch4.addConstraint(Sketcher.Constraint("Perpendicular", 13, 15))
sketch4.addConstraint(Sketcher.Constraint("Perpendicular", 16, 18))
sketch4.addConstraint(Sketcher.Constraint("Perpendicular", 17, 19))
sketch4.addConstraint(Sketcher.Constraint("Perpendicular", 18, 20))
sketch4.addConstraint(Sketcher.Constraint("Perpendicular", 19, 21))
sketch4.addConstraint(Sketcher.Constraint("Perpendicular", 20, 22))
sketch4.addConstraint(Sketcher.Constraint("Perpendicular", 21, 23))
sketch4.addConstraint(Sketcher.Constraint("Horizontal", 8, 2, 10, 2))
sketch4.addConstraint(Sketcher.Constraint("Horizontal", 12, 2, 14, 2))
sketch4.addConstraint(Sketcher.Constraint("Horizontal", 11, 2, 15, 2))
sketch4.addConstraint(Sketcher.Constraint("Vertical", 10, 2, 12, 2))
sketch4.addConstraint(Sketcher.Constraint("Vertical", 9, 2, 13, 2))
sketch4.addConstraint(Sketcher.Constraint("Equal", 0, 1))
sketch4.addConstraint(Sketcher.Constraint("Equal", 1, 2))
sketch4.addConstraint(Sketcher.Constraint("Equal", 2, 3))
sketch4.addConstraint(Sketcher.Constraint("Equal", 3, 4))
sketch4.addConstraint(Sketcher.Constraint("Equal", 4, 5))
sketch4.addConstraint(Sketcher.Constraint("Equal", 7, 8))
sketch4.addConstraint(Sketcher.Constraint("Equal", 8, 9))
sketch4.addConstraint(Sketcher.Constraint("Equal", 15, 16))
sketch4.addConstraint(Sketcher.Constraint("Equal", 16, 17))
sketch4.addConstraint(Sketcher.Constraint("Equal", 17, 18))
sketch4.addConstraint(Sketcher.Constraint("Equal", 18, 19))
sketch4.addConstraint(Sketcher.Constraint("Equal", 19, 20))
sketch4.addConstraint(Sketcher.Constraint("Equal", 20, 21))
sketch4.addConstraint(Sketcher.Constraint("Angle", 0, Q("-172.5 deg")))
sketch4.addConstraint(Sketcher.Constraint("Angle", 1, Q("142.5 deg")))
sketch4.addConstraint(Sketcher.Constraint("Angle", 8, Q("67.5 deg")))
sketch4.addConstraint(Sketcher.Constraint("Angle", 16, Q("-52.5 deg")))
sketch4.addConstraint(Sketcher.Constraint("Angle", 17, Q("-97.5 deg")))
sketch4.addConstraint(Sketcher.Constraint("DistanceY", 13, 2, 9, 2, Q("3 mm")))
sketch4.addConstraint(Sketcher.Constraint("DistanceY", 0, 2, -1, 1, Q("8.248648 mm")))
sketch4.addConstraint(Sketcher.Constraint("DistanceX", 8, 2, -1, 1, Q("7.103732 mm")))
sketch4.addConstraint(Sketcher.Constraint("DistanceY", -1, 1, 9, 2, Q("4.632612 mm")))
sketch4.addConstraint(Sketcher.Constraint("DistanceY", -1, 1, 18, 2, Q("2.218259 mm")))
sketch4.addConstraint(Sketcher.Constraint("DistanceX", -1, 1, 20, 2, Q("4.285569 mm")))
sketch4.addConstraint(Sketcher.Constraint("DistanceX", 3, 2, 16, 2, Q("7.624732 mm")))
pocket1 = doc.addObject("PartDesign::Pocket", "Pocket")
body.addObject(pocket1)
pocket1.Profile = sketch4
pocket1.Length = 1
pocket1.Reversed = True
doc.recompute()

chamfer2 = doc.addObject("PartDesign::Chamfer", "Chamfer001")
body.addObject(chamfer2)
chamfer2.Base = (pocket1, edges_at(pocket1, [(1.208, 3, 6.265), (4.822, 3, -4.179), (-6.03, 3, -2.087)]))
chamfer2.Size = 1

doc.recompute()
